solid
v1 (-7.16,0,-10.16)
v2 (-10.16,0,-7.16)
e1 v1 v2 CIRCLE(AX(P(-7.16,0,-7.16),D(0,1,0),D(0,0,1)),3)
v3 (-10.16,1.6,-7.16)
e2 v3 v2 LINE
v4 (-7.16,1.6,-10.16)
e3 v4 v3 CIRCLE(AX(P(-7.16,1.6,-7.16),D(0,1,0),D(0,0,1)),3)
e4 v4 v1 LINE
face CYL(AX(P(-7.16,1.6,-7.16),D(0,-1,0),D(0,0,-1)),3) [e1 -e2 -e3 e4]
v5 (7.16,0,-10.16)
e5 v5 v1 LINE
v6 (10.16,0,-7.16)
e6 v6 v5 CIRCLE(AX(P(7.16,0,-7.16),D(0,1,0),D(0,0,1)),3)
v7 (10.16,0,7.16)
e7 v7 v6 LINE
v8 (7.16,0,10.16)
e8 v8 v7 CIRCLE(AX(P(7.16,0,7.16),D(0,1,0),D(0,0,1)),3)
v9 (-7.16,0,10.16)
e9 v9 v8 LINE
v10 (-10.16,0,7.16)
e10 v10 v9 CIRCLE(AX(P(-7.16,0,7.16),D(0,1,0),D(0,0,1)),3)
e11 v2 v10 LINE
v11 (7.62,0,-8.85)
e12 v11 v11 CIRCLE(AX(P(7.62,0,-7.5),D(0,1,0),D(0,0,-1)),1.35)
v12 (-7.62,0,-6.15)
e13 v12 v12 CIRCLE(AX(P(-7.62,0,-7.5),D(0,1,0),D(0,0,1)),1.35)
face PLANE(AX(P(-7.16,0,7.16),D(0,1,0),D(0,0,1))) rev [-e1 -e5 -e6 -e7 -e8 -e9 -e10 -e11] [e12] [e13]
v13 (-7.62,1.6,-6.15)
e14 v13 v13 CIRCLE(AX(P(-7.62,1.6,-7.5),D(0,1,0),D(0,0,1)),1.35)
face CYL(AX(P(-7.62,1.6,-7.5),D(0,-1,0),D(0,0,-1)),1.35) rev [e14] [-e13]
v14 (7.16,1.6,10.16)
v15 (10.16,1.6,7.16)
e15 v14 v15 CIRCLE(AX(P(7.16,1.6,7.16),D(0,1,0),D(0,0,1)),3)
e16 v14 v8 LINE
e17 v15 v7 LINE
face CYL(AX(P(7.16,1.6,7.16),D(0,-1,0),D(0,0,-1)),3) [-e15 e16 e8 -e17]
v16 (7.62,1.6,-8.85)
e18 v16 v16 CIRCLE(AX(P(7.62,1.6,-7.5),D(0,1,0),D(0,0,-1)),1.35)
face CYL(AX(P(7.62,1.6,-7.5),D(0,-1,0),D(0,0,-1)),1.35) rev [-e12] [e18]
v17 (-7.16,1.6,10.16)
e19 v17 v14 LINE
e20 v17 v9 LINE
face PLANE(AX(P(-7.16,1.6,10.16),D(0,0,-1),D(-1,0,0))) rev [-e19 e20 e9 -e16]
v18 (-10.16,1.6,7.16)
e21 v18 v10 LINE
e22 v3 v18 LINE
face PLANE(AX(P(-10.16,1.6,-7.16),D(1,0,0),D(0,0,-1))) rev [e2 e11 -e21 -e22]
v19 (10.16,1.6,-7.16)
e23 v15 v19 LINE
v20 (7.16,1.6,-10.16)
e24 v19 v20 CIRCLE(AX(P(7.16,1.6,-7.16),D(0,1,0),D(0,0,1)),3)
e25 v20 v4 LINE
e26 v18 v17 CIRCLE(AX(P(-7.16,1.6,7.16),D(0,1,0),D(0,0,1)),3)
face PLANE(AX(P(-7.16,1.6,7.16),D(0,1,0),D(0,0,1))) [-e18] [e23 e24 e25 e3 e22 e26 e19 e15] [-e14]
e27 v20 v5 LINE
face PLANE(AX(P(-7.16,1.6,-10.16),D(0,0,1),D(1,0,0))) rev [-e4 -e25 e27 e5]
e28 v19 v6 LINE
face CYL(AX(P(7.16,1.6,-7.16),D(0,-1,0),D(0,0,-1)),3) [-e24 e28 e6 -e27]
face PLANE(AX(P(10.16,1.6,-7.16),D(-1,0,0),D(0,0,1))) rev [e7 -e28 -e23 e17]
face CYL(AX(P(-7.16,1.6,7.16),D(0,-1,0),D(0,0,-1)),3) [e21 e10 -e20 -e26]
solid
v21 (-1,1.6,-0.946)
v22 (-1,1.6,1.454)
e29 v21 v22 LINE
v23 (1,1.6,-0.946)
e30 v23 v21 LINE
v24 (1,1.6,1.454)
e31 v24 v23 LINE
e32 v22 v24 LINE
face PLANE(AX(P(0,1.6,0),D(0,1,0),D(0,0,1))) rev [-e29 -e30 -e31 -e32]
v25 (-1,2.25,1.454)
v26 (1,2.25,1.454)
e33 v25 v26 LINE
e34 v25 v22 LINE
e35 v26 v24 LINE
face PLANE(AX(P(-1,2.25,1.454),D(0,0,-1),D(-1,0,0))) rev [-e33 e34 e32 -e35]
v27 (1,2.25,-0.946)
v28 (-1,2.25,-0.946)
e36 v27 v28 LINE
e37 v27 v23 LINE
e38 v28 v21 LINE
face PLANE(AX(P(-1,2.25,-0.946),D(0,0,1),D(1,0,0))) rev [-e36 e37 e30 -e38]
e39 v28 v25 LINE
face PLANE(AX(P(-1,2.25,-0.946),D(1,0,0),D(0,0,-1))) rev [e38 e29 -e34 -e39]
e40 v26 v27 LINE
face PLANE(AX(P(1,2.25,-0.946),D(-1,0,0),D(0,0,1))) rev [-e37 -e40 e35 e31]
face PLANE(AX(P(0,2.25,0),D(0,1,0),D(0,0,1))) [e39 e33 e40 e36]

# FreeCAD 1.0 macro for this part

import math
import FreeCAD as App
import Part
import Sketcher
Q = App.Units.Quantity

doc = App.newDocument("Part")
body = doc.addObject("PartDesign::Body", "Body")

sketch1 = doc.addObject("Sketcher::SketchObject", "Sketch")
body.addObject(sketch1)
sketch1.AttachmentSupport = (doc.XZ_Plane, [""])
sketch1.MapMode = "FlatFace"
sketch1.addGeometry([
    Part.LineSegment(App.Vector(7.2, -10.2, 0), App.Vector(-7.2, -10.2, 0)),
    Part.ArcOfCircle(Part.Circle(App.Vector(-7.2, -7.2, 0), App.Vector(0, 0, 1), 3), math.radians(180), math.radians(270)),
    Part.LineSegment(App.Vector(-10.2, -7.2, 0), App.Vector(-10.2, 7.2, 0)),
    Part.ArcOfCircle(Part.Circle(App.Vector(-7.2, 7.2, 0), App.Vector(0, 0, 1), 3), math.radians(90), math.radians(180)),
    Part.LineSegment(App.Vector(-7.2, 10.2, 0), App.Vector(7.2, 10.2, 0)),
    Part.ArcOfCircle(Part.Circle(App.Vector(7.2, 7.2, 0), App.Vector(0, 0, 1), 3), math.radians(0), math.radians(90)),
    Part.LineSegment(App.Vector(10.2, 7.2, 0), App.Vector(10.2, -7.2, 0)),
    Part.ArcOfCircle(Part.Circle(App.Vector(7.2, -7.2, 0), App.Vector(0, 0, 1), 3), math.radians(-90), math.radians(0)),
], False)
sketch1.addConstraint([
    Sketcher.Constraint("Tangent", 0, 2, 1, 2),
    Sketcher.Constraint("Tangent", 1, 1, 2, 1),
    Sketcher.Constraint("Tangent", 2, 2, 3, 2),
    Sketcher.Constraint("Tangent", 3, 1, 4, 1),
    Sketcher.Constraint("Tangent", 4, 2, 5, 2),
    Sketcher.Constraint("Tangent", 5, 1, 6, 1),
    Sketcher.Constraint("Tangent", 6, 2, 7, 2),
    Sketcher.Constraint("Tangent", 7, 1, 0, 1),
    Sketcher.Constraint("Horizontal", 0),
    Sketcher.Constraint("Vertical", 2),
    Sketcher.Constraint("Horizontal", 4),
    Sketcher.Constraint("Vertical", 6),
    Sketcher.Constraint("Equal", 1, 3),
    Sketcher.Constraint("Equal", 3, 5),
    Sketcher.Constraint("Equal", 5, 7),
    Sketcher.Constraint("Symmetric", 1, 3, 5, 3, -1, 1),
    Sketcher.Constraint("Equal", 4, 2),
    Sketcher.Constraint("Radius", 1, Q("3 mm")),
    Sketcher.Constraint("DistanceX", 0, 2, 0, 1, Q("14.32 mm")),
])
pad1 = doc.addObject("PartDesign::Pad", "Pad")
body.addObject(pad1)
pad1.Profile = sketch1
pad1.Length = 1.6
pad1.Reversed = True

sketch2 = doc.addObject("Sketcher::SketchObject", "Sketch001")
body.addObject(sketch2)
sketch2.AttachmentSupport = (doc.XZ_Plane, [""])
sketch2.MapMode = "FlatFace"
sketch2.addGeometry([
    Part.Circle(App.Vector(-7.6, -7.5, 0), App.Vector(0, 0, 1), 1.4),
    Part.Circle(App.Vector(7.6, -7.5, 0), App.Vector(0, 0, 1), 1.4),
], False)
sketch2.addConstraint([
    Sketcher.Constraint("Equal", 0, 1),
    Sketcher.Constraint("Symmetric", 0, 3, 1, 3, -2),
    Sketcher.Constraint("Diameter", 0, Q("2.7 mm")),
    Sketcher.Constraint("DistanceY", 0, 3, -1, 1, Q("7.5 mm")),
    Sketcher.Constraint("DistanceX", 0, 3, -1, 1, Q("7.62 mm")),
])
pocket1 = doc.addObject("PartDesign::Pocket", "Pocket")
body.addObject(pocket1)
pocket1.Profile = sketch2
pocket1.Type = "ThroughAll"
body2 = doc.addObject("PartDesign::Body", "Body001")

sketch3 = doc.addObject("Sketcher::SketchObject", "Sketch002")
body2.addObject(sketch3)
sketch3.AttachmentSupport = (doc.getObject("XZ_Plane001"), [""])
sketch3.MapMode = "FlatFace"
sketch3.AttachmentOffset = App.Placement(App.Vector(0, 0, -1.6), App.Rotation())
sketch3.addGeometry([
    Part.LineSegment(App.Vector(-1, -0.9, 0), App.Vector(-1, 1.5, 0)),
    Part.LineSegment(App.Vector(-1, 1.5, 0), App.Vector(1, 1.5, 0)),
    Part.LineSegment(App.Vector(1, 1.5, 0), App.Vector(1, -0.9, 0)),
    Part.LineSegment(App.Vector(1, -0.9, 0), App.Vector(-1, -0.9, 0)),
], False)
sketch3.addConstraint([
    Sketcher.Constraint("Coincident", 0, 2, 1, 1),
    Sketcher.Constraint("Coincident", 1, 2, 2, 1),
    Sketcher.Constraint("Coincident", 2, 2, 3, 1),
    Sketcher.Constraint("Coincident", 3, 2, 0, 1),
    Sketcher.Constraint("Vertical", 0),
    Sketcher.Constraint("Horizontal", 1),
    Sketcher.Constraint("Vertical", 2),
    Sketcher.Constraint("Horizontal", 3),
    Sketcher.Constraint("DistanceX", 1, 1, 1, 2, Q("2 mm")),
    Sketcher.Constraint("DistanceY", 0, 1, 0, 2, Q("2.4 mm")),
    Sketcher.Constraint("DistanceX", 0, 2, -1, 1, Q("1 mm")),
    Sketcher.Constraint("DistanceY", -1, 1, 0, 2, Q("1.454 mm")),
])
pad2 = doc.addObject("PartDesign::Pad", "Pad001")
body2.addObject(pad2)
pad2.Profile = sketch3
pad2.Length = 0.65
pad2.Reversed = True

doc.recompute()
